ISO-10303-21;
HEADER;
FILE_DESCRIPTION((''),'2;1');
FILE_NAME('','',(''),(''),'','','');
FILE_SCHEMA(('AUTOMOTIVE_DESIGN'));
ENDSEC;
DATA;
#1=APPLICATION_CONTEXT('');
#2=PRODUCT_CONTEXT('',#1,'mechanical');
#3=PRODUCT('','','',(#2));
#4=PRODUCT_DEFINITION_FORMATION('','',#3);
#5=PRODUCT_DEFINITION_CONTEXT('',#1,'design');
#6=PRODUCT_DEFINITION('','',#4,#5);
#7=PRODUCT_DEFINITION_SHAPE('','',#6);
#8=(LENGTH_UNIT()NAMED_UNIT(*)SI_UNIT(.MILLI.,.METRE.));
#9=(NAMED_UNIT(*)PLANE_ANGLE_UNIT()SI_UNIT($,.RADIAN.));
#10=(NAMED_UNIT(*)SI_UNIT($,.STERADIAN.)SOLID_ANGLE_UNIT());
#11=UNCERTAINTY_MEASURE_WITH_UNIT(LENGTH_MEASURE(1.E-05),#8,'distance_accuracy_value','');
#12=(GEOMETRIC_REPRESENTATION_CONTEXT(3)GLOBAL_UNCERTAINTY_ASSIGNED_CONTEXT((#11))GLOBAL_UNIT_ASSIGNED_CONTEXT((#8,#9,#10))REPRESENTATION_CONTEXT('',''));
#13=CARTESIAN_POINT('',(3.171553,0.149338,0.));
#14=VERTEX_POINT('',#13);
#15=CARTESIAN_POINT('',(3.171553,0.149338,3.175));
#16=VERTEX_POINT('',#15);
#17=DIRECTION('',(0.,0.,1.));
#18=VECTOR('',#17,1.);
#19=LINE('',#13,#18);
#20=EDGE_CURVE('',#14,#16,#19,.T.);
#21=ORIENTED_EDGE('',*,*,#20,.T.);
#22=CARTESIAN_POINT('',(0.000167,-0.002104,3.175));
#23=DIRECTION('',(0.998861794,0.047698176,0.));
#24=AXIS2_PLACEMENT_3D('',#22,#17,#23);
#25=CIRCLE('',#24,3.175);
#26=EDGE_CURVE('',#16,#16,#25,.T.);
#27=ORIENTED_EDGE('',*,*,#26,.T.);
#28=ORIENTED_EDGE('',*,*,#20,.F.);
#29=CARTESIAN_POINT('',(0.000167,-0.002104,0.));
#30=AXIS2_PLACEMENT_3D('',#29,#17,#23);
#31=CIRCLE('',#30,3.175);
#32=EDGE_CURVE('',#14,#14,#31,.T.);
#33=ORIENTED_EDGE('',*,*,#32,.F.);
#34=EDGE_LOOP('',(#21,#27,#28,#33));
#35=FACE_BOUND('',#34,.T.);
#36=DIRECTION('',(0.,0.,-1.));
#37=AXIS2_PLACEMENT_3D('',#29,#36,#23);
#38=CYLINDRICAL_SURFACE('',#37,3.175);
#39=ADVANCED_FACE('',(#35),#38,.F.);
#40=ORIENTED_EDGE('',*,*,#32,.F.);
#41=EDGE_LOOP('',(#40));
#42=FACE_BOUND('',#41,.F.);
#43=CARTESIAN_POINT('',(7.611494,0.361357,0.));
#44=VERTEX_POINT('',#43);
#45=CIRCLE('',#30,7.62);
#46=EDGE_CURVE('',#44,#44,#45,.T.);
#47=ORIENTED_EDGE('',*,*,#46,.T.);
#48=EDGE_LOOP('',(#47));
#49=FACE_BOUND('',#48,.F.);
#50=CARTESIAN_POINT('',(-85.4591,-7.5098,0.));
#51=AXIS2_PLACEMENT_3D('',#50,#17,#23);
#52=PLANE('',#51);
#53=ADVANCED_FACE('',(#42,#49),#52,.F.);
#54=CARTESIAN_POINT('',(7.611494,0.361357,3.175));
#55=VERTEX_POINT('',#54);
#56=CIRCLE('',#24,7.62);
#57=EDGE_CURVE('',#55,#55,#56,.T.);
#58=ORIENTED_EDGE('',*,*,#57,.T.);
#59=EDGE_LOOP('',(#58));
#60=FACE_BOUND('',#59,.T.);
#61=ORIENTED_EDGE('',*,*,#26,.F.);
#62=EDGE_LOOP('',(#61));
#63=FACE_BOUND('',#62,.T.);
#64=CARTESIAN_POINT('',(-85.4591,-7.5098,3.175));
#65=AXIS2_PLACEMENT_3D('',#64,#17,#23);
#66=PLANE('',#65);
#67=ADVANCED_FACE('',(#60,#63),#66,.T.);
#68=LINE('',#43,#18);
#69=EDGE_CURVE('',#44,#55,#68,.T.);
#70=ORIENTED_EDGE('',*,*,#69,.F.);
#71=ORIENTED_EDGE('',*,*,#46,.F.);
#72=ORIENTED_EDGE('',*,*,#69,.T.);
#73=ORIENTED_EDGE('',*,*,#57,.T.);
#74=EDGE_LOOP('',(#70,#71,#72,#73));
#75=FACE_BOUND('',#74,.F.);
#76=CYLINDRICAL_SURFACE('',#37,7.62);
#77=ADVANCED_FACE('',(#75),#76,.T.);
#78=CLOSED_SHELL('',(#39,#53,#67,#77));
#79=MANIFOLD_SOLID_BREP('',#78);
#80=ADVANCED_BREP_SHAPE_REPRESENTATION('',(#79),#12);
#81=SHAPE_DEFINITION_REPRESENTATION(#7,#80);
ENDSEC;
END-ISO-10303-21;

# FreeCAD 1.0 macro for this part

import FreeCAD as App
import Part
import Sketcher

V = App.Vector
Q = App.Units.Quantity

doc = App.newDocument("Part")
body = doc.addObject("PartDesign::Body", "Body")

# Sketch on XY plane
sketch1 = body.newObject("Sketcher::SketchObject", "Sketch")
sketch1.AttachmentSupport = (doc.getObject("XY_Plane"), [""])
sketch1.MapMode = "FlatFace"
sketch1.addGeometry([
    Part.Circle(V(0, 0, 0), V(0, 0, 1), 7.6),
    Part.Circle(V(0, 0, 0), V(0, 0, 1), 3.2),
], False)
sketch1.addConstraint([
    Sketcher.Constraint("Coincident", 1, 3, 0, 3),
    Sketcher.Constraint("PointOnObject", 0, 3, -2),
    Sketcher.Constraint("Diameter", 0, Q("0.6 in")),
    Sketcher.Constraint("Diameter", 1, Q("0.25 in")),
    Sketcher.Constraint("DistanceY", 0, 3, -1, 1, Q("0.002 mm")),
])
pad1 = body.newObject("PartDesign::Pad", "Pad")
pad1.Profile = sketch1
pad1.Length = Q("0.125 in")

doc.recompute()
